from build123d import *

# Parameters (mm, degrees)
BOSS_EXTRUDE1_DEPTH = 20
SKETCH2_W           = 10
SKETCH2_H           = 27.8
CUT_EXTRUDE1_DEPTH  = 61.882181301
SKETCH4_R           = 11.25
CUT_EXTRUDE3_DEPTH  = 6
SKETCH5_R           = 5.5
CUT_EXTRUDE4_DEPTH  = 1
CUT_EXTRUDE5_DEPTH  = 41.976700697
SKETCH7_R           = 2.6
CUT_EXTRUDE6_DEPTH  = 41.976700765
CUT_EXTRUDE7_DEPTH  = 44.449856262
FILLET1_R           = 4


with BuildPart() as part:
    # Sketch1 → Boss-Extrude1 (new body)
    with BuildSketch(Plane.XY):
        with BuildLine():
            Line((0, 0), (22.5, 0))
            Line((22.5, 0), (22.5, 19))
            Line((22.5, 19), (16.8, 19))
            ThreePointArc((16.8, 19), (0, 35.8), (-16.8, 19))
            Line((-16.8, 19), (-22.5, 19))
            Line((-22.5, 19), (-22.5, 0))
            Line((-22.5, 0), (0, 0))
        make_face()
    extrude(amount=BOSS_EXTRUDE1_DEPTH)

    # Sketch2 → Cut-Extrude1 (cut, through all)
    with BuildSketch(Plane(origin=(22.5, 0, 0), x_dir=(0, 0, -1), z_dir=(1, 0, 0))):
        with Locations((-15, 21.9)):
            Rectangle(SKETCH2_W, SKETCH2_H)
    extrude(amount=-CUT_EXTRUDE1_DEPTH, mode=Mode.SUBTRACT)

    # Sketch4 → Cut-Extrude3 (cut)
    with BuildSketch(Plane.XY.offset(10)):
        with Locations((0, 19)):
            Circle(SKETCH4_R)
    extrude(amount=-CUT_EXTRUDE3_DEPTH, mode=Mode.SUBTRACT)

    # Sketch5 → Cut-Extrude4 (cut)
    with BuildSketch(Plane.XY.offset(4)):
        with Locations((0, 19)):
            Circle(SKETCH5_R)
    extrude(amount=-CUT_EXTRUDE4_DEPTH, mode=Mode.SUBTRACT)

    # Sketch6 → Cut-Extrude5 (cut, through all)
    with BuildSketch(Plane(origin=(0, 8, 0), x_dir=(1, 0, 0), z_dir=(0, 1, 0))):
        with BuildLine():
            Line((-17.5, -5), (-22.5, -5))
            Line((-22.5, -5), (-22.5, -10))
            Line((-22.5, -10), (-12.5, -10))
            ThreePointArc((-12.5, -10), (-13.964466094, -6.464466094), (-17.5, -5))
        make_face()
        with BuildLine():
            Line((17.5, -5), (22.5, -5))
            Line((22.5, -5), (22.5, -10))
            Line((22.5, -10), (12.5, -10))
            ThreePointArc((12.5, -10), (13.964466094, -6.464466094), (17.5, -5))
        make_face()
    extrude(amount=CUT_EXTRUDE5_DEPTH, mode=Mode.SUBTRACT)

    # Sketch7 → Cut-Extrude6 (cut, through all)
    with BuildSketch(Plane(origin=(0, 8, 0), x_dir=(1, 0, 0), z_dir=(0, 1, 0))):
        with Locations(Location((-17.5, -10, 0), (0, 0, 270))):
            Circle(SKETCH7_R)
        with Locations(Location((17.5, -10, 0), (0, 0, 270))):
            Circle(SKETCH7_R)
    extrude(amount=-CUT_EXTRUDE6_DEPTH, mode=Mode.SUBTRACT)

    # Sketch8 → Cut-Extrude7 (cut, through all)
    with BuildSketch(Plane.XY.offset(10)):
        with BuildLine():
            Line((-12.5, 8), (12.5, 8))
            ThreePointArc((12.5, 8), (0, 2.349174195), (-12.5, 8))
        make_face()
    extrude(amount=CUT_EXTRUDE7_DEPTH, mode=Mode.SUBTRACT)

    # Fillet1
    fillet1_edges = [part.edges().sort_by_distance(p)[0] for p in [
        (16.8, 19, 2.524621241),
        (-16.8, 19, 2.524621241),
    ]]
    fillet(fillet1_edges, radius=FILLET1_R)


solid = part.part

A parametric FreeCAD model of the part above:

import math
import FreeCAD as App
import Part
import Sketcher

V = App.Vector
Q = App.Units.Quantity


def edges_at(feature, points):
    """Names of the edges that pass closest to the given points."""
    edges = feature.Shape.Edges
    near = lambda p: min(range(len(edges)), key=lambda i: edges[i].distToShape(Part.Vertex(*p))[0])
    return sorted({f"Edge{near(p) + 1}" for p in points})


def add_polygon(sketch, points):
    """Adds a closed chain of lines whose ends are joined by coincident constraints."""
    first, n = sketch.GeometryCount, len(points)
    for a, b in zip(points, points[1:] + points[:1]):
        sketch.addGeometry(Part.LineSegment(App.Vector(*a, 0), App.Vector(*b, 0)), False)
    for i in range(n):
        sketch.addConstraint(Sketcher.Constraint("Coincident", first + i, 2, first + (i + 1) % n, 1))

doc = App.newDocument("Part")
body = doc.addObject("PartDesign::Body", "Body")

sketch1 = doc.addObject("Sketcher::SketchObject", "Sketch")
body.addObject(sketch1)
sketch1.AttachmentSupport = (doc.XY_Plane, [""])
sketch1.MapMode = "FlatFace"
sketch1.addGeometry([
    Part.LineSegment(V(22, 0, 0), V(22, 19, 0)),
    Part.LineSegment(V(22, 19, 0), V(17, 19, 0)),
    Part.ArcOfCircle(Part.Circle(V(0, 19, 0), V(0, 0, 1), 17), math.radians(0), math.radians(180)),
    Part.LineSegment(V(-17, 19, 0), V(-22, 19, 0)),
    Part.LineSegment(V(-22, 19, 0), V(-22, 0, 0)),
    Part.LineSegment(V(-22, 0, 0), V(22, 0, 0)),
], False)
sketch1.addConstraint([
    Sketcher.Constraint("Coincident", 0, 2, 1, 1),
    Sketcher.Constraint("Coincident", 1, 2, 2, 1),
    Sketcher.Constraint("Coincident", 2, 2, 3, 1),
    Sketcher.Constraint("Coincident", 3, 2, 4, 1),
    Sketcher.Constraint("Coincident", 4, 2, 5, 1),
    Sketcher.Constraint("Coincident", 5, 2, 0, 1),
    Sketcher.Constraint("Vertical", 0),
    Sketcher.Constraint("Horizontal", 1),
    Sketcher.Constraint("Horizontal", 3),
    Sketcher.Constraint("Vertical", 4),
    Sketcher.Constraint("Horizontal", 5),
    Sketcher.Constraint("Symmetric", 4, 2, 5, 2, -1, 1),
    Sketcher.Constraint("Symmetric", 1, 2, 2, 2, -2),
    Sketcher.Constraint("Horizontal", 2, 3, 0, 2),
    Sketcher.Constraint("Radius", 2, Q("16.8 mm")),
    Sketcher.Constraint("DistanceX", 5, 1, 5, 2, Q("45 mm")),
    Sketcher.Constraint("DistanceY", 0, 1, 0, 2, Q("19 mm")),
])
pad1 = doc.addObject("PartDesign::Pad", "Pad")
body.addObject(pad1)
pad1.Profile = sketch1
pad1.Length = 20

sketch2 = doc.addObject("Sketcher::SketchObject", "Sketch001")
body.addObject(sketch2)
sketch2.AttachmentSupport = (doc.YZ_Plane, [""])
sketch2.MapMode = "FlatFace"
sketch2.AttachmentOffset = App.Placement(V(0, 0, 22.5), App.Rotation())
add_polygon(sketch2, [(36, 20), (8, 20), (8, 10), (36, 10)])
sketch2.addConstraint([
    Sketcher.Constraint("Horizontal", 0),
    Sketcher.Constraint("Vertical", 1),
    Sketcher.Constraint("Horizontal", 2),
    Sketcher.Constraint("Vertical", 3),
    Sketcher.Constraint("DistanceY", 1, 2, 1, 1, Q("10 mm")),
    Sketcher.Constraint("DistanceX", 0, 2, 0, 1, Q("27.8 mm")),
    Sketcher.Constraint("DistanceX", -1, 1, 0, 2, Q("8 mm")),
    Sketcher.Constraint("DistanceY", -1, 1, 0, 2, Q("20 mm")),
])
pocket1 = doc.addObject("PartDesign::Pocket", "Pocket")
body.addObject(pocket1)
pocket1.Profile = sketch2
pocket1.Type = "ThroughAll"

sketch3 = doc.addObject("Sketcher::SketchObject", "Sketch002")
body.addObject(sketch3)
sketch3.AttachmentSupport = (doc.XY_Plane, [""])
sketch3.MapMode = "FlatFace"
sketch3.AttachmentOffset = App.Placement(V(0, 0, 10), App.Rotation())
sketch3.addGeometry(Part.Circle(V(0, 19, 0), V(0, 0, 1), 11), False)
sketch3.addConstraint([
    Sketcher.Constraint("PointOnObject", 0, 3, -2),
    Sketcher.Constraint("Diameter", 0, Q("22.5 mm")),
    Sketcher.Constraint("DistanceY", -1, 1, 0, 3, Q("19 mm")),
])
pocket2 = doc.addObject("PartDesign::Pocket", "Pocket001")
body.addObject(pocket2)
pocket2.Profile = sketch3
pocket2.Length = 6

sketch4 = doc.addObject("Sketcher::SketchObject", "Sketch003")
body.addObject(sketch4)
sketch4.AttachmentSupport = (doc.XY_Plane, [""])
sketch4.MapMode = "FlatFace"
sketch4.AttachmentOffset = App.Placement(V(0, 0, 4), App.Rotation())
sketch4.addGeometry(Part.Circle(V(0, 19, 0), V(0, 0, 1), 6), False)
sketch4.addConstraint([
    Sketcher.Constraint("PointOnObject", 0, 3, -2),
    Sketcher.Constraint("Diameter", 0, Q("11 mm")),
    Sketcher.Constraint("DistanceY", -1, 1, 0, 3, Q("19 mm")),
])
pocket3 = doc.addObject("PartDesign::Pocket", "Pocket002")
body.addObject(pocket3)
pocket3.Profile = sketch4
pocket3.Length = 1

sketch5 = doc.addObject("Sketcher::SketchObject", "Sketch004")
body.addObject(sketch5)
sketch5.AttachmentSupport = (doc.XZ_Plane, [""])
sketch5.MapMode = "FlatFace"
sketch5.AttachmentOffset = App.Placement(V(0, 0, -8), App.Rotation())
sketch5.addGeometry([
    Part.LineSegment(V(-18, 5, 0), V(-22, 5, 0)),
    Part.LineSegment(V(-22, 5, 0), V(-22, 10, 0)),
    Part.LineSegment(V(-22, 10, 0), V(-12, 10, 0)),
    Part.ArcOfCircle(Part.Circle(V(-18, 10, 0), V(0, 0, 1), 5), math.radians(-90), math.radians(0)),
    Part.LineSegment(V(22, 5, 0), V(18, 5, 0)),
    Part.ArcOfCircle(Part.Circle(V(18, 10, 0), V(0, 0, 1), 5), math.radians(180), math.radians(270)),
    Part.LineSegment(V(12, 10, 0), V(22, 10, 0)),
    Part.LineSegment(V(22, 10, 0), V(22, 5, 0)),
], False)
sketch5.addConstraint([
    Sketcher.Constraint("Coincident", 0, 2, 1, 1),
    Sketcher.Constraint("Coincident", 1, 2, 2, 1),
    Sketcher.Constraint("Coincident", 2, 2, 3, 2),
    Sketcher.Constraint("Tangent", 3, 1, 0, 1),
    Sketcher.Constraint("Tangent", 4, 2, 5, 2),
    Sketcher.Constraint("Coincident", 5, 1, 6, 1),
    Sketcher.Constraint("Coincident", 6, 2, 7, 1),
    Sketcher.Constraint("Coincident", 7, 2, 4, 1),
    Sketcher.Constraint("Horizontal", 0),
    Sketcher.Constraint("Vertical", 1),
    Sketcher.Constraint("Horizontal", 2),
    Sketcher.Constraint("Horizontal", 4),
    Sketcher.Constraint("Horizontal", 6),
    Sketcher.Constraint("Vertical", 7),
    Sketcher.Constraint("Equal", 3, 5),
    Sketcher.Constraint("Symmetric", 3, 3, 5, 3, -2),
    Sketcher.Constraint("Symmetric", 1, 2, 6, 2, -2),
    Sketcher.Constraint("Horizontal", 5, 3, 1, 2),
    Sketcher.Constraint("Equal", 4, 1),
    Sketcher.Constraint("Radius", 3, Q("5 mm")),
    Sketcher.Constraint("DistanceY", -1, 1, 3, 3, Q("10 mm")),
    Sketcher.Constraint("DistanceX", 3, 3, 5, 3, Q("35 mm")),
])
pocket4 = doc.addObject("PartDesign::Pocket", "Pocket003")
body.addObject(pocket4)
pocket4.Profile = sketch5
pocket4.Type = "ThroughAll"

sketch6 = doc.addObject("Sketcher::SketchObject", "Sketch005")
body.addObject(sketch6)
sketch6.AttachmentSupport = (doc.XZ_Plane, [""])
sketch6.MapMode = "FlatFace"
sketch6.AttachmentOffset = App.Placement(V(0, 0, -8), App.Rotation())
sketch6.addGeometry([
    Part.Circle(V(-17.5, 10, 0), V(0, 0, 1), 2.6),
    Part.Circle(V(17.5, 10, 0), V(0, 0, 1), 2.6),
], False)
sketch6.addConstraint([
    Sketcher.Constraint("Equal", 0, 1),
    Sketcher.Constraint("Symmetric", 0, 3, 1, 3, -2),
    Sketcher.Constraint("Diameter", 0, Q("5.2 mm")),
    Sketcher.Constraint("DistanceY", -1, 1, 0, 3, Q("10 mm")),
    Sketcher.Constraint("DistanceX", 0, 3, 1, 3, Q("35 mm")),
])
pocket5 = doc.addObject("PartDesign::Pocket", "Pocket004")
body.addObject(pocket5)
pocket5.Profile = sketch6
pocket5.Type = "ThroughAll"
pocket5.Reversed = True

sketch7 = doc.addObject("Sketcher::SketchObject", "Sketch006")
body.addObject(sketch7)
sketch7.AttachmentSupport = (doc.XY_Plane, [""])
sketch7.MapMode = "FlatFace"
sketch7.AttachmentOffset = App.Placement(V(0, 0, 10), App.Rotation())
sketch7.addGeometry([
    Part.LineSegment(V(12, 8, 0), V(-12, 8, 0)),
    Part.ArcOfCircle(Part.Circle(V(0, 19, 0), V(0, 0, 1), 17), math.radians(-139), math.radians(-41)),
], False)
sketch7.addConstraint([
    Sketcher.Constraint("Coincident", 0, 1, 1, 2),
    Sketcher.Constraint("Coincident", 1, 1, 0, 2),
    Sketcher.Constraint("Horizontal", 0),
    Sketcher.Constraint("PointOnObject", 1, 3, -2),
    Sketcher.Constraint("DistanceX", 0, 2, 0, 1, Q("25 mm")),
    Sketcher.Constraint("DistanceY", -1, 1, 1, 3, Q("19 mm")),
    Sketcher.Constraint("DistanceY", -1, 1, 0, 1, Q("8 mm")),
])
pocket6 = doc.addObject("PartDesign::Pocket", "Pocket005")
body.addObject(pocket6)
pocket6.Profile = sketch7
pocket6.Type = "ThroughAll"
pocket6.Reversed = True
doc.recompute()

fillet = doc.addObject("PartDesign::Fillet", "Fillet")
body.addObject(fillet)
fillet.Base = (pocket6, edges_at(pocket6, [(16.8, 19, 2.525), (-16.8, 19, 2.525)]))
fillet.Radius = 4

doc.recompute()
